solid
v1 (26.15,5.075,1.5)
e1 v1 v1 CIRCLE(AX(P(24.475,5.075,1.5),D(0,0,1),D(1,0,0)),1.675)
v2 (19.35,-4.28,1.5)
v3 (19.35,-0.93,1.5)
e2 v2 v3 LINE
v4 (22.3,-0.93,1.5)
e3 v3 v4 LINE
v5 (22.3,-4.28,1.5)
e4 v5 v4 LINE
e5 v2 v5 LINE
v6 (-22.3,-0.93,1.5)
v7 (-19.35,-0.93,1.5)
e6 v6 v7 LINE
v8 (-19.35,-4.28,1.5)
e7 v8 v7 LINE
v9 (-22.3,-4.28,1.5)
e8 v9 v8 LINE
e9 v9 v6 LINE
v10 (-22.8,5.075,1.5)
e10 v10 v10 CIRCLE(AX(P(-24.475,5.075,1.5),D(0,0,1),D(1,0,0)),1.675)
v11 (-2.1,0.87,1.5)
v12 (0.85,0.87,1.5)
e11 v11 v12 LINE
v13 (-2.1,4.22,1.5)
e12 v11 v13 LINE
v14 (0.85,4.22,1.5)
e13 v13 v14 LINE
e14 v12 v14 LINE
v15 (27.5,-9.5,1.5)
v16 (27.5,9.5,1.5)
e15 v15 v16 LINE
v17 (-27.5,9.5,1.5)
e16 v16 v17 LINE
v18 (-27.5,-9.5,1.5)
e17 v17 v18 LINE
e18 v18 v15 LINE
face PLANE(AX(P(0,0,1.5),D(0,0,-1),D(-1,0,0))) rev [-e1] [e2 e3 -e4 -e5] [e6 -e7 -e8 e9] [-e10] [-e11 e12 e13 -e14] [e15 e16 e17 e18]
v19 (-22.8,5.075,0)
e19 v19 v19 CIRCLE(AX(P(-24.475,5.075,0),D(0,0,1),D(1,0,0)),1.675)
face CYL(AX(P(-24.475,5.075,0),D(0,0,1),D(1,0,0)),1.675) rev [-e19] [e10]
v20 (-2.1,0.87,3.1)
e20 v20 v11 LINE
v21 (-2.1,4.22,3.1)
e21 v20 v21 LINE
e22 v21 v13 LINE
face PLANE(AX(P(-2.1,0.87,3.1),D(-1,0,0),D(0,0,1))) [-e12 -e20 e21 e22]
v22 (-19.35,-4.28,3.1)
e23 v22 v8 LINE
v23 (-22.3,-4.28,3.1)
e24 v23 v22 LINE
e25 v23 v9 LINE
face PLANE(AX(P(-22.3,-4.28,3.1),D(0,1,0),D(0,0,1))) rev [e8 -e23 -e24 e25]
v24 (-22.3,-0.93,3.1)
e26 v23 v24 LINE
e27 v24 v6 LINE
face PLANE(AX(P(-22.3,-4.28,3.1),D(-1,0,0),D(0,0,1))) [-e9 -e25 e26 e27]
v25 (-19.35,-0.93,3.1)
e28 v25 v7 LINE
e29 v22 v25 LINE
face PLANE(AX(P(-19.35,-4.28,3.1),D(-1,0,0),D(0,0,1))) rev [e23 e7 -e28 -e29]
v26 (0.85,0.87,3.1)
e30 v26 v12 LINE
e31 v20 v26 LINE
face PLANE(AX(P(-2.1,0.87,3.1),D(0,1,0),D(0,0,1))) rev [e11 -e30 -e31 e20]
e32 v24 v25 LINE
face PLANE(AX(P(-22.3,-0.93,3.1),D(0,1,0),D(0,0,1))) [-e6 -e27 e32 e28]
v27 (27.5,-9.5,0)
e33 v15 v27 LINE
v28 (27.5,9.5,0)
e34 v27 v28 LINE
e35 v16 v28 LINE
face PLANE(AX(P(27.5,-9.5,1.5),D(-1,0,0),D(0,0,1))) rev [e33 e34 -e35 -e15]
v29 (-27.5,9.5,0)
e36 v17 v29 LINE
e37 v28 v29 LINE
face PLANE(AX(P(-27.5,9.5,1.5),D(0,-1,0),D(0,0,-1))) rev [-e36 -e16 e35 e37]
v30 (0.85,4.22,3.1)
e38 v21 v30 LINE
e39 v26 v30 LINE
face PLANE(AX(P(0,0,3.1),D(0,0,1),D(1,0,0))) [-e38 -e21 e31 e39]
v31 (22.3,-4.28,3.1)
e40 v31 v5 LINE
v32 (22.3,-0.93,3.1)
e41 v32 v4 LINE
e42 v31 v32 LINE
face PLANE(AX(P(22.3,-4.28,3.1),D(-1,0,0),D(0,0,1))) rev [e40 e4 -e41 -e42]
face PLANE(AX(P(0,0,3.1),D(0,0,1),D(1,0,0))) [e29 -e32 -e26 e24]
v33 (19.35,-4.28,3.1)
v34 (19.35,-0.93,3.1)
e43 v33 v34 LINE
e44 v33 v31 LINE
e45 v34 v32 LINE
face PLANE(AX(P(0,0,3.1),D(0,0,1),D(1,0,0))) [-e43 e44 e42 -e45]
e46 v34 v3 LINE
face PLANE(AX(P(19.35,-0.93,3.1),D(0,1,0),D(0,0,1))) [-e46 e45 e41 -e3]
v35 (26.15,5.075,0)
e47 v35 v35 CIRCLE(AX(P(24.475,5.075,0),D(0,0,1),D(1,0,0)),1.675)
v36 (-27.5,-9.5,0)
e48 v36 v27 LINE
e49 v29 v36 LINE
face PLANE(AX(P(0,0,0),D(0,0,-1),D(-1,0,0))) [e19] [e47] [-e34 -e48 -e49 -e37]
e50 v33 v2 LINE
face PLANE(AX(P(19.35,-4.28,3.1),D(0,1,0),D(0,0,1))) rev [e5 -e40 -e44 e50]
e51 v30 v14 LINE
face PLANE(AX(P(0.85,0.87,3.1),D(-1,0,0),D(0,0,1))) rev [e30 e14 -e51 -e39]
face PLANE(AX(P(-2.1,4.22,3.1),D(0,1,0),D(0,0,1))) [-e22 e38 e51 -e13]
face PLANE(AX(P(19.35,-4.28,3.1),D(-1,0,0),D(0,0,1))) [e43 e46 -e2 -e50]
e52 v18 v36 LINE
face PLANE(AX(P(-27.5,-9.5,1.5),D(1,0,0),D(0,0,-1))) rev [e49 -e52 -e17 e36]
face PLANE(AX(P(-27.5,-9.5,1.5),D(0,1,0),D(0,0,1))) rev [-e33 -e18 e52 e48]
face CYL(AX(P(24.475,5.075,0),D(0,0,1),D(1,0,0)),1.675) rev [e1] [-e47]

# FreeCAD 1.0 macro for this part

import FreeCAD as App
import Part
import Sketcher

V = App.Vector


def add_polygon(sketch, points):
    """Adds a closed chain of lines whose ends are joined by coincident constraints."""
    first, n = sketch.GeometryCount, len(points)
    for a, b in zip(points, points[1:] + points[:1]):
        sketch.addGeometry(Part.LineSegment(App.Vector(*a, 0), App.Vector(*b, 0)), False)
    for i in range(n):
        sketch.addConstraint(Sketcher.Constraint("Coincident", first + i, 2, first + (i + 1) % n, 1))

doc = App.newDocument("Part")
body = doc.addObject("PartDesign::Body", "Body")

sketch1 = body.newObject("Sketcher::SketchObject", "Sketch")
sketch1.AttachmentSupport = (doc.getObject("XY_Plane"), [""])
sketch1.MapMode = "FlatFace"
add_polygon(sketch1, [(-28, 10), (-28, -10), (28, -10), (28, 10)])
sketch1.addConstraint(Sketcher.Constraint("Vertical", 0))
sketch1.addConstraint(Sketcher.Constraint("Horizontal", 1))
sketch1.addConstraint(Sketcher.Constraint("Vertical", 2))
sketch1.addConstraint(Sketcher.Constraint("Horizontal", 3))
sketch1.addConstraint(Sketcher.Constraint("Symmetric", 0, 2, 2, 2, -1, 1))
sketch1.addConstraint(Sketcher.Constraint("DistanceX", 1, 1, 1, 2, 55.0))
sketch1.addConstraint(Sketcher.Constraint("DistanceY", 0, 2, 0, 1, 19.0))
pad1 = body.newObject("PartDesign::Pad", "Pad")
pad1.Profile = sketch1
pad1.Length = 1.5

sketch2 = body.newObject("Sketcher::SketchObject", "Sketch001")
sketch2.AttachmentSupport = (doc.getObject("XY_Plane"), [""])
sketch2.MapMode = "FlatFace"
sketch2.AttachmentOffset = App.Placement(V(0, 0, 1.5), App.Rotation())
sketch2.addGeometry(Part.Circle(V(-24.5, 5.1, 0), V(0, 0, 1), 1.7), False)
sketch2.addGeometry(Part.Circle(V(24.5, 5.1, 0), V(0, 0, 1), 1.7), False)
sketch2.addConstraint(Sketcher.Constraint("Equal", 0, 1))
sketch2.addConstraint(Sketcher.Constraint("Symmetric", 0, 3, 1, 3, -2))
sketch2.addConstraint(Sketcher.Constraint("Diameter", 0, 3.35))
sketch2.addConstraint(Sketcher.Constraint("DistanceX", 0, 3, 1, 3, 48.95))
sketch2.addConstraint(Sketcher.Constraint("DistanceY", -1, 1, 0, 3, 5.075))
pocket1 = body.newObject("PartDesign::Pocket", "Pocket")
pocket1.Profile = sketch2
pocket1.Length = 1.5

sketch3 = body.newObject("Sketcher::SketchObject", "Sketch002")
sketch3.AttachmentSupport = (doc.getObject("XY_Plane"), [""])
sketch3.MapMode = "FlatFace"
sketch3.AttachmentOffset = App.Placement(V(0, 0, 1.5), App.Rotation())
add_polygon(sketch3, [(-2.1, 4.2), (-2.1, 0.9), (0.8, 0.9), (0.8, 4.2)])
add_polygon(sketch3, [(19.4, -0.9), (19.4, -4.3), (22.3, -4.3), (22.3, -0.9)])
add_polygon(sketch3, [(-22.3, -0.9), (-22.3, -4.3), (-19.4, -4.3), (-19.4, -0.9)])
sketch3.addConstraint(Sketcher.Constraint("Vertical", 0))
sketch3.addConstraint(Sketcher.Constraint("Horizontal", 1))
sketch3.addConstraint(Sketcher.Constraint("Vertical", 2))
sketch3.addConstraint(Sketcher.Constraint("Horizontal", 3))
sketch3.addConstraint(Sketcher.Constraint("Vertical", 4))
sketch3.addConstraint(Sketcher.Constraint("Horizontal", 5))
sketch3.addConstraint(Sketcher.Constraint("Vertical", 6))
sketch3.addConstraint(Sketcher.Constraint("Horizontal", 7))
sketch3.addConstraint(Sketcher.Constraint("Vertical", 8))
sketch3.addConstraint(Sketcher.Constraint("Horizontal", 9))
sketch3.addConstraint(Sketcher.Constraint("Vertical", 10))
sketch3.addConstraint(Sketcher.Constraint("Horizontal", 11))
sketch3.addConstraint(Sketcher.Constraint("Symmetric", 5, 2, 8, 2, -2))
sketch3.addConstraint(Sketcher.Constraint("Symmetric", 7, 2, 10, 2, -2))
sketch3.addConstraint(Sketcher.Constraint("Equal", 3, 5))
sketch3.addConstraint(Sketcher.Constraint("Equal", 2, 4))
sketch3.addConstraint(Sketcher.Constraint("DistanceX", 1, 1, 1, 2, 2.95))
sketch3.addConstraint(Sketcher.Constraint("DistanceY", 0, 2, 0, 1, 3.35))
sketch3.addConstraint(Sketcher.Constraint("DistanceX", 0, 2, -1, 1, 2.1))
sketch3.addConstraint(Sketcher.Constraint("DistanceX", -1, 1, 5, 2, 22.3))
sketch3.addConstraint(Sketcher.Constraint("DistanceY", 4, 2, 2, 2, 8.5))
sketch3.addConstraint(Sketcher.Constraint("DistanceY", -1, 1, 0, 2, 0.87))
pad2 = body.newObject("PartDesign::Pad", "Pad001")
pad2.Profile = sketch3
pad2.Length = 1.6

doc.recompute()
